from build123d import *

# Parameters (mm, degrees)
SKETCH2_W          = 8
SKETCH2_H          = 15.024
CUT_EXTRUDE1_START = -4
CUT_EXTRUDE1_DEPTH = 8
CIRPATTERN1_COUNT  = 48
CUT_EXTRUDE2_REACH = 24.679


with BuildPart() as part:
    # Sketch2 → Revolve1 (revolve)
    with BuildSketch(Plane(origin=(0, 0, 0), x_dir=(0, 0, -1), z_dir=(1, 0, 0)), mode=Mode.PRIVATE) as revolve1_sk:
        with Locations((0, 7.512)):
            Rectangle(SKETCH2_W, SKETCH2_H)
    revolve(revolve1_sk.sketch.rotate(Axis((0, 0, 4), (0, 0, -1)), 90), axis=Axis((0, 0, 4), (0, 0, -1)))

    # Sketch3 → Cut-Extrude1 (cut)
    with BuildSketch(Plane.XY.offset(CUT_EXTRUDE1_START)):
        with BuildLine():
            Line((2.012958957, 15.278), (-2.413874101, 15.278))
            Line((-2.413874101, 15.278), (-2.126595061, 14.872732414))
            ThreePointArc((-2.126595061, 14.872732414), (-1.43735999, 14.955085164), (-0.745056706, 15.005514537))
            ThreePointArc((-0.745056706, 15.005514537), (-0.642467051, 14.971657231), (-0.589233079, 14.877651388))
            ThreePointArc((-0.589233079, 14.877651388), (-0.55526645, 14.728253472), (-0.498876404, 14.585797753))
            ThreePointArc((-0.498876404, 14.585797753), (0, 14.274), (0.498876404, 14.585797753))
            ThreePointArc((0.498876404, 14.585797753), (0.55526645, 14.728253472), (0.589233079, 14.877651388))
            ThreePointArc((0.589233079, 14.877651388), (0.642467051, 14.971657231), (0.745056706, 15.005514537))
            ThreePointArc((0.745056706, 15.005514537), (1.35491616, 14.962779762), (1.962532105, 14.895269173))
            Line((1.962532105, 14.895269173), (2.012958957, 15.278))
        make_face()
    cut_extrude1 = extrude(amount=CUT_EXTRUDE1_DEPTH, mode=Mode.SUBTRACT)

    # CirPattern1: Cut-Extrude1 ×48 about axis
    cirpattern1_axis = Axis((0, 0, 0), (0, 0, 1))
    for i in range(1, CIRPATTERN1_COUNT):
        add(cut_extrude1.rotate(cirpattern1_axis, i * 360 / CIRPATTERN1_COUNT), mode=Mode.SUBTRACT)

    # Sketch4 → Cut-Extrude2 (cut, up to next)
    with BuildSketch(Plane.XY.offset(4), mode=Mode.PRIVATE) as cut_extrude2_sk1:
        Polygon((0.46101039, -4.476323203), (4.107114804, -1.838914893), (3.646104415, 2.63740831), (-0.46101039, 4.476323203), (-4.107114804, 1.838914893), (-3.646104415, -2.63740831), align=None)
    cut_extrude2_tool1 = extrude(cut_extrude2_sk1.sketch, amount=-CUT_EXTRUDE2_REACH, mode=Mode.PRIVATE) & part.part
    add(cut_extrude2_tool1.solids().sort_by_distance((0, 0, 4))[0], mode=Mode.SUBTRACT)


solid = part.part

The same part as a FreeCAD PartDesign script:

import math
import FreeCAD as App
import Part
import Sketcher
Q = App.Units.Quantity

doc = App.newDocument("Part")
body = doc.addObject("PartDesign::Body", "Body")

sketch1 = doc.addObject("Sketcher::SketchObject", "Sketch")
body.addObject(sketch1)
sketch1.AttachmentSupport = (doc.YZ_Plane, [""])
sketch1.MapMode = "FlatFace"
sketch1.addGeometry([
    Part.LineSegment(App.Vector(15, 4, 0), App.Vector(0, 4, 0)),
    Part.LineSegment(App.Vector(0, 4, 0), App.Vector(0, -4, 0)),
    Part.LineSegment(App.Vector(0, -4, 0), App.Vector(15, -4, 0)),
    Part.LineSegment(App.Vector(15, -4, 0), App.Vector(15, 4, 0)),
], False)
sketch1.addConstraint([
    Sketcher.Constraint("Coincident", 0, 2, 1, 1),
    Sketcher.Constraint("Coincident", 1, 2, 2, 1),
    Sketcher.Constraint("Coincident", 2, 2, 3, 1),
    Sketcher.Constraint("Coincident", 3, 2, 0, 1),
    Sketcher.Constraint("Horizontal", 0),
    Sketcher.Constraint("Vertical", 1),
    Sketcher.Constraint("Horizontal", 2),
    Sketcher.Constraint("Vertical", 3),
    Sketcher.Constraint("Symmetric", 0, 2, 1, 2, -1, 1),
    Sketcher.Constraint("DistanceY", 1, 2, 1, 1, Q("8 mm")),
    Sketcher.Constraint("DistanceX", 0, 2, 0, 1, Q("15.024 mm")),
])
revolution = doc.addObject("PartDesign::Revolution", "Revolution")
body.addObject(revolution)
revolution.Profile = sketch1
revolution.ReferenceAxis = (sketch1, ["V_Axis"])
revolution.Angle = 360

sketch2 = doc.addObject("Sketcher::SketchObject", "Sketch001")
body.addObject(sketch2)
sketch2.AttachmentSupport = (doc.XY_Plane, [""])
sketch2.MapMode = "FlatFace"
sketch2.AttachmentOffset = App.Placement(App.Vector(0, 0, -4), App.Rotation())
sketch2.addGeometry([
    Part.LineSegment(App.Vector(2.01, 15.28, 0), App.Vector(-2.41, 15.28, 0)),
    Part.LineSegment(App.Vector(-2.41, 15.28, 0), App.Vector(-2.13, 14.87, 0)),
    Part.ArcOfCircle(Part.Circle(App.Vector(0, 0, 0), App.Vector(0, 0, 1), 15.02), math.radians(92.84), math.radians(98.14)),
    Part.ArcOfCircle(Part.Circle(App.Vector(-0.74, 14.86, 0), App.Vector(0, 0, 1), 0.15), math.radians(8), math.radians(93)),
    Part.ArcOfCircle(Part.Circle(App.Vector(0.4, 15.02, 0), App.Vector(0, 0, 1), 1), math.radians(-171.58), math.radians(-154.01)),
    Part.ArcOfCircle(Part.Circle(App.Vector(0, 14.83, 0), App.Vector(0, 0, 1), 0.55), math.radians(-154), math.radians(-26)),
    Part.ArcOfCircle(Part.Circle(App.Vector(-0.4, 15.02, 0), App.Vector(0, 0, 1), 1), math.radians(-25.99), math.radians(-8.42)),
    Part.ArcOfCircle(Part.Circle(App.Vector(0.74, 14.86, 0), App.Vector(0, 0, 1), 0.15), math.radians(87), math.radians(172)),
    Part.ArcOfCircle(Part.Circle(App.Vector(0, 0, 0), App.Vector(0, 0, 1), 15.02), math.radians(82.49), math.radians(87.16)),
    Part.LineSegment(App.Vector(1.96, 14.9, 0), App.Vector(2.01, 15.28, 0)),
], False)
sketch2.addConstraint([
    Sketcher.Constraint("Coincident", 0, 2, 1, 1),
    Sketcher.Constraint("Coincident", 1, 2, 2, 2),
    Sketcher.Constraint("Tangent", 2, 1, 3, 2),
    Sketcher.Constraint("Tangent", 3, 1, 4, 1),
    Sketcher.Constraint("Tangent", 4, 2, 5, 1),
    Sketcher.Constraint("Tangent", 5, 2, 6, 1),
    Sketcher.Constraint("Tangent", 6, 2, 7, 2),
    Sketcher.Constraint("Tangent", 7, 1, 8, 2),
    Sketcher.Constraint("Coincident", 8, 1, 9, 1),
    Sketcher.Constraint("Coincident", 9, 2, 0, 1),
    Sketcher.Constraint("Horizontal", 0),
    Sketcher.Constraint("Coincident", 2, 3, -1, 1),
    Sketcher.Constraint("Coincident", 8, 3, -1, 1),
    Sketcher.Constraint("Equal", 4, 6),
    Sketcher.Constraint("Equal", 3, 7),
    Sketcher.Constraint("Equal", 2, 8),
    Sketcher.Constraint("Symmetric", 4, 3, 6, 3, -2),
    Sketcher.Constraint("Radius", 4, Q("1 mm")),
    Sketcher.Constraint("Radius", 3, Q("0.15 mm")),
    Sketcher.Constraint("Radius", 2, Q("15.024 mm")),
    Sketcher.Constraint("Radius", 5, Q("0.555 mm")),
    Sketcher.Constraint("DistanceX", -1, 1, 4, 3, Q("0.4 mm")),
    Sketcher.Constraint("DistanceY", -1, 1, 4, 3, Q("15.024 mm")),
    Sketcher.Constraint("DistanceY", -1, 1, 0, 2, Q("15.278 mm")),
    Sketcher.Constraint("DistanceX", 6, 2, 8, 1, Q("1.373299 mm")),
    Sketcher.Constraint("Distance", 1, Q("0.496761 mm")),
    Sketcher.Constraint("Distance", 9, Q("0.386039 mm")),
    Sketcher.Constraint("DistanceX", 0, 2, 0, 1, Q("4.426833 mm")),
])
pocket1 = doc.addObject("PartDesign::Pocket", "Pocket")
body.addObject(pocket1)
pocket1.Profile = sketch2
pocket1.Length = 8
pocket1.Reversed = True
doc.recompute()

polarpattern = doc.addObject("PartDesign::PolarPattern", "PolarPattern")
body.addObject(polarpattern)
polarpattern.Originals = [pocket1]
polarpattern.Axis = (doc.Z_Axis, [""])
polarpattern.Angle = 360
polarpattern.Occurrences = 48
body.Tip = polarpattern

sketch3 = doc.addObject("Sketcher::SketchObject", "Sketch002")
body.addObject(sketch3)
sketch3.AttachmentSupport = (doc.XY_Plane, [""])
sketch3.MapMode = "FlatFace"
sketch3.AttachmentOffset = App.Placement(App.Vector(0, 0, 4), App.Rotation())
sketch3.addGeometry([
    Part.LineSegment(App.Vector(0.5, -4.5, 0), App.Vector(4.1, -1.8, 0)),
    Part.LineSegment(App.Vector(4.1, -1.8, 0), App.Vector(3.6, 2.6, 0)),
    Part.LineSegment(App.Vector(3.6, 2.6, 0), App.Vector(-0.5, 4.5, 0)),
    Part.LineSegment(App.Vector(-0.5, 4.5, 0), App.Vector(-4.1, 1.8, 0)),
    Part.LineSegment(App.Vector(-4.1, 1.8, 0), App.Vector(-3.6, -2.6, 0)),
    Part.LineSegment(App.Vector(-3.6, -2.6, 0), App.Vector(0.5, -4.5, 0)),
], False)
sketch3.addConstraint([
    Sketcher.Constraint("Coincident", 0, 2, 1, 1),
    Sketcher.Constraint("Coincident", 1, 2, 2, 1),
    Sketcher.Constraint("Coincident", 2, 2, 3, 1),
    Sketcher.Constraint("Coincident", 3, 2, 4, 1),
    Sketcher.Constraint("Coincident", 4, 2, 5, 1),
    Sketcher.Constraint("Coincident", 5, 2, 0, 1),
    Sketcher.Constraint("Symmetric", 0, 2, 3, 2, -1, 1),
    Sketcher.Constraint("Symmetric", 1, 2, 4, 2, -1, 1),
    Sketcher.Constraint("Symmetric", 2, 2, 5, 2, -1, 1),
    Sketcher.Constraint("Equal", 0, 1),
    Sketcher.Constraint("Equal", 1, 2),
    Sketcher.Constraint("Distance", 0, Q("4.5 mm")),
    Sketcher.Constraint("DistanceY", -1, 1, 1, 2, Q("2.637408 mm")),
    Sketcher.Constraint("DistanceX", 2, 2, -1, 1, Q("0.46101 mm")),
    Sketcher.Constraint("DistanceX", 1, 2, 0, 2, Q("0.46101 mm")),
])
pocket2 = doc.addObject("PartDesign::Pocket", "Pocket001")
body.addObject(pocket2)
pocket2.Profile = sketch3
pocket2.Type = "UpToFirst"

doc.recompute()
